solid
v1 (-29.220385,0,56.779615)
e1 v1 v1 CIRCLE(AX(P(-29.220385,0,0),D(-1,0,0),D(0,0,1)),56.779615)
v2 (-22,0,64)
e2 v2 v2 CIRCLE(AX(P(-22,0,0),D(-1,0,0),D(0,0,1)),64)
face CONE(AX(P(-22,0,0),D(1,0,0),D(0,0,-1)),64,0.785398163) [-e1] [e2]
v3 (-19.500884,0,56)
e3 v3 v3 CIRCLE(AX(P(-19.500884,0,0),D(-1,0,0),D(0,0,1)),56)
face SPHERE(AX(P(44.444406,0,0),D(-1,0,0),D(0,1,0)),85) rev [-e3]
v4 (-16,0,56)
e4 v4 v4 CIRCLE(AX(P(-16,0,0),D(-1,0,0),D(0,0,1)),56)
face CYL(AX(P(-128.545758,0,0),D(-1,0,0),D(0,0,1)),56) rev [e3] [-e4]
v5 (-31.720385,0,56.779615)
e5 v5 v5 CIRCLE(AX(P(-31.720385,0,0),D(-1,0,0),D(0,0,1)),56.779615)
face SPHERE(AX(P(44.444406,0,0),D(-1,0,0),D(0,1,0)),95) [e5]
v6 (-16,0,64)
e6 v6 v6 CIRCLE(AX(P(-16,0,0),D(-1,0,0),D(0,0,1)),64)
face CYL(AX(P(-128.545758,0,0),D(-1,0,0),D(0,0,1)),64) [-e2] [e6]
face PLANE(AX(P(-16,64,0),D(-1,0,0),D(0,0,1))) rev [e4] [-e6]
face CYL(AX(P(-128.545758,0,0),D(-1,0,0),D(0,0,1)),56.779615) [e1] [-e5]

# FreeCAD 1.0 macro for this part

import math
import FreeCAD as App
import Part
import Sketcher
from FreeCAD import Vector
Q = App.Units.Quantity

doc = App.newDocument("Part")
params = doc.addObject("Spreadsheet::Sheet", "Params")
for row, (alias, value) in enumerate([
    ("sketch1_radius", "95 mm"),
    ("sketch1_radius2", "85 mm"),
    ("sketch1_width", "6 mm"),
    ("sketch1_height", "8 mm"),
    ("sketch1_width2", "2.5 mm"),
    ("revolution_angle", "360 deg"),
], start=1):
    params.set(f"A{row}", alias)
    params.set(f"B{row}", "=" + value)
    params.setAlias(f"B{row}", alias)

body = doc.addObject("PartDesign::Body", "Body")

# Sketch on XY plane
sketch1 = body.newObject("Sketcher::SketchObject", "Sketch")
sketch1.AttachmentSupport = (doc.getObject("XY_Plane"), [""])
sketch1.MapMode = "FlatFace"
sketch1.addGeometry([
    Part.LineSegment(Vector(-29.220385, 56.779615, 0), Vector(-31.720385, 56.779615, 0)),  # 0
    Part.ArcOfCircle(Part.Circle(Vector(44.444406, 0, 0), Vector(0, 0, 1), 95), math.radians(143.296069), math.radians(180)),  # 1
    Part.LineSegment(Vector(-50.555594, 0, 0), Vector(-40.555594, 0, 0)),  # 2
    Part.ArcOfCircle(Part.Circle(Vector(44.444406, 0, 0), Vector(0, 0, 1), 85), math.radians(138.78979), math.radians(180)),  # 3
    Part.LineSegment(Vector(-19.500884, 56, 0), Vector(-16, 56, 0)),  # 4
    Part.LineSegment(Vector(-16, 56, 0), Vector(-16, 64, 0)),  # 5
    Part.LineSegment(Vector(-16, 64, 0), Vector(-22, 64, 0)),  # 6
    Part.LineSegment(Vector(-22, 64, 0), Vector(-29.220385, 56.779615, 0)),  # 7
], False)
sketch1.addConstraint([
    Sketcher.Constraint("Coincident", 0, 2, 1, 1),
    Sketcher.Constraint("Coincident", 1, 2, 2, 1),
    Sketcher.Constraint("Coincident", 2, 2, 3, 2),
    Sketcher.Constraint("Coincident", 3, 1, 4, 1),
    Sketcher.Constraint("Coincident", 4, 2, 5, 1),
    Sketcher.Constraint("Coincident", 5, 2, 6, 1),
    Sketcher.Constraint("Coincident", 6, 2, 7, 1),
    Sketcher.Constraint("Coincident", 7, 2, 0, 1),
    Sketcher.Constraint("Horizontal", 0),
    Sketcher.Constraint("Horizontal", 2),
    Sketcher.Constraint("Horizontal", 4),
    Sketcher.Constraint("Vertical", 5),
    Sketcher.Constraint("Horizontal", 6),
    Sketcher.Constraint("Coincident", 3, 3, 1, 3),
    Sketcher.Constraint("PointOnObject", 1, 3, -1),
    Sketcher.Constraint("PointOnObject", 1, 2, -1),
    Sketcher.Constraint("Radius", 1, Q("95 mm")),
    Sketcher.Constraint("Radius", 3, Q("85 mm")),
    Sketcher.Constraint("DistanceX", 6, 2, 6, 1, Q("6 mm")),
    Sketcher.Constraint("DistanceY", 5, 1, 5, 2, Q("8 mm")),
    Sketcher.Constraint("Angle", 7, Q("-135 deg")),
    Sketcher.Constraint("DistanceX", 0, 2, 0, 1, Q("2.5 mm")),
    Sketcher.Constraint("DistanceY", -1, 1, 3, 1, Q("56 mm")),
    Sketcher.Constraint("DistanceX", 4, 2, -1, 1, Q("16 mm")),
    Sketcher.Constraint("DistanceX", 0, 2, 3, 1, Q("12.219502 mm")),
])
sketch1.setExpression("Constraints[16]", "Params.sketch1_radius")
sketch1.setExpression("Constraints[17]", "Params.sketch1_radius2")
sketch1.setExpression("Constraints[18]", "Params.sketch1_width")
sketch1.setExpression("Constraints[19]", "Params.sketch1_height")
sketch1.setExpression("Constraints[21]", "Params.sketch1_width2")
revolution = body.newObject("PartDesign::Revolution", "Revolution")
revolution.Profile = sketch1
revolution.ReferenceAxis = (sketch1, ["H_Axis"])
revolution.setExpression("Angle", "Params.revolution_angle")

doc.recompute()
